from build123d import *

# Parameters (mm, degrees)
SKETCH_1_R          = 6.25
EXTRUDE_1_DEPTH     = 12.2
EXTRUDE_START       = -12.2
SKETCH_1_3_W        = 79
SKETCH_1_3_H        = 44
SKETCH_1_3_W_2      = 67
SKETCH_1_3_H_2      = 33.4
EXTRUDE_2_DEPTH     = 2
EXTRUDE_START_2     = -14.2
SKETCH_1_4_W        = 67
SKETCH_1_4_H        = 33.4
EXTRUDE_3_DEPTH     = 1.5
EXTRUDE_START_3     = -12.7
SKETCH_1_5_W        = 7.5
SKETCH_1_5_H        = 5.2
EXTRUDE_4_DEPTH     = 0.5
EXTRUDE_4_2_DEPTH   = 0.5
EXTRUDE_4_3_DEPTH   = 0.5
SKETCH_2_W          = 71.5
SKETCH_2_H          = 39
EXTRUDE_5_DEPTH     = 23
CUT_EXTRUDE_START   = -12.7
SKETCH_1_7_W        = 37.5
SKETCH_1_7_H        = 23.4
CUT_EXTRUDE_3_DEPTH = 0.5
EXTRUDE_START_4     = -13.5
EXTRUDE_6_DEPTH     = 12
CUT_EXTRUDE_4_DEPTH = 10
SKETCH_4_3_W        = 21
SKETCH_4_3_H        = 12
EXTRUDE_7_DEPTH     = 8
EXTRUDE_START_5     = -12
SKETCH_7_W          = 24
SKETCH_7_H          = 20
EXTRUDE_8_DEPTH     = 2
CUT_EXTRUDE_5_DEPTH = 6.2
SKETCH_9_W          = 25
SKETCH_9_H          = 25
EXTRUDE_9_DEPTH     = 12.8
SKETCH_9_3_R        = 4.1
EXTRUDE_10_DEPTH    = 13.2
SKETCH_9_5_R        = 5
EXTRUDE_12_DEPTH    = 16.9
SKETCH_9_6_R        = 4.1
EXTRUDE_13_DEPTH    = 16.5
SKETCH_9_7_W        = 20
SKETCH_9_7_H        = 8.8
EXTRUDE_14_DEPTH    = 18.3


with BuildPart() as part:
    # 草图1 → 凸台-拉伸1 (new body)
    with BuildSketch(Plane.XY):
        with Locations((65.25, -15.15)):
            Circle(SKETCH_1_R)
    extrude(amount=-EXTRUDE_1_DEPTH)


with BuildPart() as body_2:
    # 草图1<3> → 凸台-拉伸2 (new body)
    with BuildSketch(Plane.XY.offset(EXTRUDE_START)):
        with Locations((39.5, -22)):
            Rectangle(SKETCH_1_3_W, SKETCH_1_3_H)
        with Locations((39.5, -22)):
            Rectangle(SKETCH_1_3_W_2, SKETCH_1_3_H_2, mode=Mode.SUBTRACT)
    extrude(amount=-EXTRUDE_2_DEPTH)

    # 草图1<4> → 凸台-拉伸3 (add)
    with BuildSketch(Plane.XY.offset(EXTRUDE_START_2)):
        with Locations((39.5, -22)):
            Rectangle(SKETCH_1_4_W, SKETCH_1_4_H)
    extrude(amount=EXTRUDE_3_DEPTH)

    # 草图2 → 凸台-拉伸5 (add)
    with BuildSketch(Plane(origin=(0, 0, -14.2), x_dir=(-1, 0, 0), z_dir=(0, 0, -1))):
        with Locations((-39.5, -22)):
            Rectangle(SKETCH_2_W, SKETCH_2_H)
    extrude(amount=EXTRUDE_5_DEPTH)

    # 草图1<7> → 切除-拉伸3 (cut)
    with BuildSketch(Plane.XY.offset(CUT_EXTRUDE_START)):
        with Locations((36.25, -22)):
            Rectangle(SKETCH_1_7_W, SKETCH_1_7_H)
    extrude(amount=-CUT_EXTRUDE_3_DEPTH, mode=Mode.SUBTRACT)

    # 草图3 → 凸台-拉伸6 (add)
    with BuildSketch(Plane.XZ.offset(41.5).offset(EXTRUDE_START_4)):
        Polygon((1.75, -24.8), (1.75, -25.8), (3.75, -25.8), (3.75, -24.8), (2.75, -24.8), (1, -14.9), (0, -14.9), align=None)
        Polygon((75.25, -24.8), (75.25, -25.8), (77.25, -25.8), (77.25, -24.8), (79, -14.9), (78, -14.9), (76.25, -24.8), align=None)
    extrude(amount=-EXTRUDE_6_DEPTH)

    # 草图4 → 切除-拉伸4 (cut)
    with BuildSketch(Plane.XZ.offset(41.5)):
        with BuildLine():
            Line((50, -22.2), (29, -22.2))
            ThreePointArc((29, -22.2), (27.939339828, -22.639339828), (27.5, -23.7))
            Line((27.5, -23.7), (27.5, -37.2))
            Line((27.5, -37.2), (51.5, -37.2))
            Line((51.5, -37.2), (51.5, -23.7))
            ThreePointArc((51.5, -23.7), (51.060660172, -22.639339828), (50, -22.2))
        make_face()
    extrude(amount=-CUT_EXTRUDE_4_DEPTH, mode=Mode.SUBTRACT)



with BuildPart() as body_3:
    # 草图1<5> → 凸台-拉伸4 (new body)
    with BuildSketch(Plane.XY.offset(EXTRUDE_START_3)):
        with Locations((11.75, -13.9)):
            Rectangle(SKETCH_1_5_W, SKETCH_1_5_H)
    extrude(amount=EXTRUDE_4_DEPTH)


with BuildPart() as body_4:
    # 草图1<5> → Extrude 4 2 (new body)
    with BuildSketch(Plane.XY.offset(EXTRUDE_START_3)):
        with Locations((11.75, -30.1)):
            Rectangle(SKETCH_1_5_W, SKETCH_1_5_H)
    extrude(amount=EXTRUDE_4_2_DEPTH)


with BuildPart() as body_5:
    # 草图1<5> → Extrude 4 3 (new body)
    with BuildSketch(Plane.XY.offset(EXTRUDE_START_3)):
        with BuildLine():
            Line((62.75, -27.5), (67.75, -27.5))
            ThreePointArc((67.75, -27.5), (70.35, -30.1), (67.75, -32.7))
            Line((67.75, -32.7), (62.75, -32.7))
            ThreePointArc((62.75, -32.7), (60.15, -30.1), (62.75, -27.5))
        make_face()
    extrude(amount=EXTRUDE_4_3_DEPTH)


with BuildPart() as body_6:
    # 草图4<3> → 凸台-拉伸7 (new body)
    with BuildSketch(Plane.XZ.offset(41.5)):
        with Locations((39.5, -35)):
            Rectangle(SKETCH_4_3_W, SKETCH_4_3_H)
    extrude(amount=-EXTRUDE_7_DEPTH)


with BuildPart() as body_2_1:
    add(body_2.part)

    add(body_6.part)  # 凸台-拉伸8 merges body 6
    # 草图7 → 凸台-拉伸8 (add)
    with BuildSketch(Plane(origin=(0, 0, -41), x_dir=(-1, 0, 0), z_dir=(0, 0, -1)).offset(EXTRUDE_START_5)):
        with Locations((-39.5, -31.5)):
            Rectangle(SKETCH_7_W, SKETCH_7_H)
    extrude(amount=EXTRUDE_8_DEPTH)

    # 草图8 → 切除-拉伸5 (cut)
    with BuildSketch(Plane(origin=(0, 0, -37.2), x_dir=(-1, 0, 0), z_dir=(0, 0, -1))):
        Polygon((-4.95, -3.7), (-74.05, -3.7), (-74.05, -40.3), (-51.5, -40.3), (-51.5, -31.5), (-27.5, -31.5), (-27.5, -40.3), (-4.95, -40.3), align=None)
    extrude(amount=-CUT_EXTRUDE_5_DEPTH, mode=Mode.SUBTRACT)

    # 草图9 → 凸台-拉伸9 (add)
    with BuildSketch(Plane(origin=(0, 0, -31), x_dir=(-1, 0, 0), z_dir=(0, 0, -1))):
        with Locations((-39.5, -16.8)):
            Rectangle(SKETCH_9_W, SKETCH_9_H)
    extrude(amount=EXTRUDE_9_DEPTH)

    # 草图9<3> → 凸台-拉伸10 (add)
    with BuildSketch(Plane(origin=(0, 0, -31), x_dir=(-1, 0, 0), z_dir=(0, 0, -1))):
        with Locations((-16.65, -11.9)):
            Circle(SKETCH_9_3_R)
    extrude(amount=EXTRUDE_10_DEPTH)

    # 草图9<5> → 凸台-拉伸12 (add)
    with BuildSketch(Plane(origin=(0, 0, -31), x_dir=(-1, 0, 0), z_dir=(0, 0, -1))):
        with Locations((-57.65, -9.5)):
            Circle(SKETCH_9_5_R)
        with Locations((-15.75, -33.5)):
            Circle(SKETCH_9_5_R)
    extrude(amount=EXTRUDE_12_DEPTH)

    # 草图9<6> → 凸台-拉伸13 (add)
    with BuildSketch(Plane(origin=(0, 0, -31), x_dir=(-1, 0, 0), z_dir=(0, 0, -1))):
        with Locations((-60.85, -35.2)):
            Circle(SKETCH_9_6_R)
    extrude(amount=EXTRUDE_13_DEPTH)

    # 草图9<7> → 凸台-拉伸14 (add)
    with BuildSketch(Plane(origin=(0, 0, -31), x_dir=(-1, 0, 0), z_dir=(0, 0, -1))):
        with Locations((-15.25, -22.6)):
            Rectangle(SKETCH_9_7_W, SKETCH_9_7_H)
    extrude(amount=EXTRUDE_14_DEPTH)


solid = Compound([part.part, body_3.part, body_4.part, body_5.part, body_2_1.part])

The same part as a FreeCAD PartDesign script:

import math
import FreeCAD as App
import Part
import Sketcher
from FreeCAD import Vector
Q = App.Units.Quantity

doc = App.newDocument("Part")
body = doc.addObject("PartDesign::Body", "Body")

# Sketch on XY plane
sketch1 = body.newObject("Sketcher::SketchObject", "Sketch")
sketch1.AttachmentSupport = (doc.getObject("XY_Plane"), [""])
sketch1.MapMode = "FlatFace"
sketch1.addGeometry(Part.Circle(Vector(65, -15, 0), Vector(0, 0, 1), 6), False)
sketch1.addConstraint([
    Sketcher.Constraint("Diameter", 0, Q("12.5 mm")),
    Sketcher.Constraint("DistanceX", -1, 1, 0, 3, Q("65.25 mm")),
    Sketcher.Constraint("DistanceY", 0, 3, -1, 1, Q("15.15 mm")),
])
pad1 = body.newObject("PartDesign::Pad", "Pad")
pad1.Profile = sketch1
pad1.Length = 12.2
pad1.Reversed = True
body2 = doc.addObject("PartDesign::Body", "Body001")

# Sketch on XY plane
sketch2 = body2.newObject("Sketcher::SketchObject", "Sketch001")
sketch2.AttachmentSupport = (doc.getObject("XY_Plane001"), [""])
sketch2.MapMode = "FlatFace"
sketch2.AttachmentOffset = App.Placement(Vector(0, 0, -12.2), App.Rotation())
sketch2.addGeometry([
    Part.LineSegment(Vector(0, 0, 0), Vector(0, -44, 0)),  # 0
    Part.LineSegment(Vector(0, -44, 0), Vector(79, -44, 0)),  # 1
    Part.LineSegment(Vector(79, -44, 0), Vector(79, 0, 0)),  # 2
    Part.LineSegment(Vector(79, 0, 0), Vector(0, 0, 0)),  # 3
    Part.LineSegment(Vector(73, -39, 0), Vector(6, -39, 0)),  # 4
    Part.LineSegment(Vector(6, -39, 0), Vector(6, -5, 0)),  # 5
    Part.LineSegment(Vector(6, -5, 0), Vector(73, -5, 0)),  # 6
    Part.LineSegment(Vector(73, -5, 0), Vector(73, -39, 0)),  # 7
], False)
sketch2.addConstraint([
    Sketcher.Constraint("Coincident", 0, 2, 1, 1),
    Sketcher.Constraint("Coincident", 1, 2, 2, 1),
    Sketcher.Constraint("Coincident", 2, 2, 3, 1),
    Sketcher.Constraint("Coincident", 3, 2, 0, 1),
    Sketcher.Constraint("Coincident", 4, 2, 5, 1),
    Sketcher.Constraint("Coincident", 5, 2, 6, 1),
    Sketcher.Constraint("Coincident", 6, 2, 7, 1),
    Sketcher.Constraint("Coincident", 7, 2, 4, 1),
    Sketcher.Constraint("Vertical", 0),
    Sketcher.Constraint("Horizontal", 1),
    Sketcher.Constraint("Vertical", 2),
    Sketcher.Constraint("Horizontal", 3),
    Sketcher.Constraint("Horizontal", 4),
    Sketcher.Constraint("Vertical", 5),
    Sketcher.Constraint("Horizontal", 6),
    Sketcher.Constraint("Vertical", 7),
    Sketcher.Constraint("Coincident", 3, 2, -1, 1),
    Sketcher.Constraint("DistanceX", 1, 1, 1, 2, Q("79 mm")),
    Sketcher.Constraint("DistanceX", 4, 2, 4, 1, Q("67 mm")),
    Sketcher.Constraint("DistanceY", 0, 2, 0, 1, Q("44 mm")),
    Sketcher.Constraint("DistanceY", 5, 1, 5, 2, Q("33.4 mm")),
    Sketcher.Constraint("DistanceX", -1, 1, 4, 2, Q("6 mm")),
    Sketcher.Constraint("DistanceY", 4, 2, -1, 1, Q("38.7 mm")),
])
pad2 = body2.newObject("PartDesign::Pad", "Pad001")
pad2.Profile = sketch2
pad2.Length = 2
pad2.Reversed = True

# Sketch on XY plane
sketch3 = body2.newObject("Sketcher::SketchObject", "Sketch002")
sketch3.AttachmentSupport = (doc.getObject("XY_Plane001"), [""])
sketch3.MapMode = "FlatFace"
sketch3.AttachmentOffset = App.Placement(Vector(0, 0, -14.2), App.Rotation())
sketch3.addGeometry([
    Part.LineSegment(Vector(6, -5, 0), Vector(6, -39, 0)),
    Part.LineSegment(Vector(6, -39, 0), Vector(73, -39, 0)),
    Part.LineSegment(Vector(73, -39, 0), Vector(73, -5, 0)),
    Part.LineSegment(Vector(73, -5, 0), Vector(6, -5, 0)),
], False)
sketch3.addConstraint([
    Sketcher.Constraint("Coincident", 0, 2, 1, 1),
    Sketcher.Constraint("Coincident", 1, 2, 2, 1),
    Sketcher.Constraint("Coincident", 2, 2, 3, 1),
    Sketcher.Constraint("Coincident", 3, 2, 0, 1),
    Sketcher.Constraint("Vertical", 0),
    Sketcher.Constraint("Horizontal", 1),
    Sketcher.Constraint("Vertical", 2),
    Sketcher.Constraint("Horizontal", 3),
    Sketcher.Constraint("DistanceX", 1, 1, 1, 2, Q("67 mm")),
    Sketcher.Constraint("DistanceY", 0, 2, 0, 1, Q("33.4 mm")),
    Sketcher.Constraint("DistanceX", -1, 1, 0, 2, Q("6 mm")),
    Sketcher.Constraint("DistanceY", 0, 2, -1, 1, Q("38.7 mm")),
])
pad3 = body2.newObject("PartDesign::Pad", "Pad002")
pad3.Profile = sketch3
pad3.Length = 1.5

# Sketch on XY plane
sketch4 = body2.newObject("Sketcher::SketchObject", "Sketch003")
sketch4.AttachmentSupport = (doc.getObject("XY_Plane001"), [""])
sketch4.MapMode = "FlatFace"
sketch4.AttachmentOffset = App.Placement(Vector(0, 0, -14.2), App.Rotation())
sketch4.addGeometry([
    Part.LineSegment(Vector(75, -2, 0), Vector(75, -42, 0)),
    Part.LineSegment(Vector(75, -42, 0), Vector(4, -42, 0)),
    Part.LineSegment(Vector(4, -42, 0), Vector(4, -2, 0)),
    Part.LineSegment(Vector(4, -2, 0), Vector(75, -2, 0)),
], False)
sketch4.addConstraint([
    Sketcher.Constraint("Coincident", 0, 2, 1, 1),
    Sketcher.Constraint("Coincident", 1, 2, 2, 1),
    Sketcher.Constraint("Coincident", 2, 2, 3, 1),
    Sketcher.Constraint("Coincident", 3, 2, 0, 1),
    Sketcher.Constraint("Vertical", 0),
    Sketcher.Constraint("Horizontal", 1),
    Sketcher.Constraint("Vertical", 2),
    Sketcher.Constraint("Horizontal", 3),
    Sketcher.Constraint("DistanceY", 0, 2, 0, 1, Q("39 mm")),
    Sketcher.Constraint("DistanceX", 1, 2, 1, 1, Q("71.5 mm")),
    Sketcher.Constraint("DistanceY", 0, 2, -1, 1, Q("41.5 mm")),
    Sketcher.Constraint("DistanceX", -1, 1, 0, 2, Q("75.25 mm")),
])
pad4 = body2.newObject("PartDesign::Pad", "Pad003")
pad4.Profile = sketch4
pad4.Length = 23
pad4.Reversed = True

# Sketch on XY plane
sketch5 = body2.newObject("Sketcher::SketchObject", "Sketch004")
sketch5.AttachmentSupport = (doc.getObject("XY_Plane001"), [""])
sketch5.MapMode = "FlatFace"
sketch5.AttachmentOffset = App.Placement(Vector(0, 0, -12.7), App.Rotation())
sketch5.addGeometry([
    Part.LineSegment(Vector(18, -10, 0), Vector(18, -34, 0)),
    Part.LineSegment(Vector(18, -34, 0), Vector(55, -34, 0)),
    Part.LineSegment(Vector(55, -34, 0), Vector(55, -10, 0)),
    Part.LineSegment(Vector(55, -10, 0), Vector(18, -10, 0)),
], False)
sketch5.addConstraint([
    Sketcher.Constraint("Coincident", 0, 2, 1, 1),
    Sketcher.Constraint("Coincident", 1, 2, 2, 1),
    Sketcher.Constraint("Coincident", 2, 2, 3, 1),
    Sketcher.Constraint("Coincident", 3, 2, 0, 1),
    Sketcher.Constraint("Vertical", 0),
    Sketcher.Constraint("Horizontal", 1),
    Sketcher.Constraint("Vertical", 2),
    Sketcher.Constraint("Horizontal", 3),
    Sketcher.Constraint("DistanceX", 1, 1, 1, 2, Q("37.5 mm")),
    Sketcher.Constraint("DistanceY", 0, 2, 0, 1, Q("23.4 mm")),
    Sketcher.Constraint("DistanceX", -1, 1, 1, 2, Q("55 mm")),
    Sketcher.Constraint("DistanceY", 0, 2, -1, 1, Q("33.7 mm")),
])
pocket1 = body2.newObject("PartDesign::Pocket", "Pocket")
pocket1.Profile = sketch5
pocket1.Length = 0.5

# Sketch on XZ plane
sketch6 = body2.newObject("Sketcher::SketchObject", "Sketch005")
sketch6.AttachmentSupport = (doc.getObject("XZ_Plane001"), [""])
sketch6.MapMode = "FlatFace"
sketch6.AttachmentOffset = App.Placement(Vector(0, 0, 28), App.Rotation())
sketch6.addGeometry([
    Part.LineSegment(Vector(1.8, -24.8, 0), Vector(1.8, -25.8, 0)),  # 0
    Part.LineSegment(Vector(1.8, -25.8, 0), Vector(3.8, -25.8, 0)),  # 1
    Part.LineSegment(Vector(3.8, -25.8, 0), Vector(3.8, -24.8, 0)),  # 2
    Part.LineSegment(Vector(3.8, -24.8, 0), Vector(2.8, -24.8, 0)),  # 3
    Part.LineSegment(Vector(2.8, -24.8, 0), Vector(1, -14.9, 0)),  # 4
    Part.LineSegment(Vector(1, -14.9, 0), Vector(0, -14.9, 0)),  # 5
    Part.LineSegment(Vector(0, -14.9, 0), Vector(1.8, -24.8, 0)),  # 6
    Part.LineSegment(Vector(75.2, -24.8, 0), Vector(75.2, -25.8, 0)),  # 7
    Part.LineSegment(Vector(75.2, -25.8, 0), Vector(77.2, -25.8, 0)),  # 8
    Part.LineSegment(Vector(77.2, -25.8, 0), Vector(77.2, -24.8, 0)),  # 9
    Part.LineSegment(Vector(77.2, -24.8, 0), Vector(79, -14.9, 0)),  # 10
    Part.LineSegment(Vector(79, -14.9, 0), Vector(78, -14.9, 0)),  # 11
    Part.LineSegment(Vector(78, -14.9, 0), Vector(76.2, -24.8, 0)),  # 12
    Part.LineSegment(Vector(76.2, -24.8, 0), Vector(75.2, -24.8, 0)),  # 13
], False)
sketch6.addConstraint([
    Sketcher.Constraint("Coincident", 0, 2, 1, 1),
    Sketcher.Constraint("Coincident", 1, 2, 2, 1),
    Sketcher.Constraint("Coincident", 2, 2, 3, 1),
    Sketcher.Constraint("Coincident", 3, 2, 4, 1),
    Sketcher.Constraint("Coincident", 4, 2, 5, 1),
    Sketcher.Constraint("Coincident", 5, 2, 6, 1),
    Sketcher.Constraint("Coincident", 6, 2, 0, 1),
    Sketcher.Constraint("Coincident", 7, 2, 8, 1),
    Sketcher.Constraint("Coincident", 8, 2, 9, 1),
    Sketcher.Constraint("Coincident", 9, 2, 10, 1),
    Sketcher.Constraint("Coincident", 10, 2, 11, 1),
    Sketcher.Constraint("Coincident", 11, 2, 12, 1),
    Sketcher.Constraint("Coincident", 12, 2, 13, 1),
    Sketcher.Constraint("Coincident", 13, 2, 7, 1),
    Sketcher.Constraint("Vertical", 0),
    Sketcher.Constraint("Horizontal", 1),
    Sketcher.Constraint("Vertical", 2),
    Sketcher.Constraint("Horizontal", 3),
    Sketcher.Constraint("Horizontal", 5),
    Sketcher.Constraint("Vertical", 7),
    Sketcher.Constraint("Horizontal", 8),
    Sketcher.Constraint("Vertical", 9),
    Sketcher.Constraint("Horizontal", 11),
    Sketcher.Constraint("Horizontal", 13),
    Sketcher.Constraint("PointOnObject", 5, 2, -2),
    Sketcher.Constraint("Parallel", 4, 6),
    Sketcher.Constraint("Parallel", 10, 12),
    Sketcher.Constraint("Horizontal", 3, 2, 6, 2),
    Sketcher.Constraint("Horizontal", 1, 2, 7, 2),
    Sketcher.Constraint("Horizontal", 6, 2, 9, 2),
    Sketcher.Constraint("Horizontal", 5, 2, 10, 2),
    Sketcher.Constraint("Horizontal", 9, 2, 12, 2),
    Sketcher.Constraint("Equal", 3, 5),
    Sketcher.Constraint("Equal", 1, 8),
    Sketcher.Constraint("Equal", 5, 11),
    Sketcher.Constraint("Equal", 13, 0),
    Sketcher.Constraint("Equal", 6, 10),
    Sketcher.Constraint("DistanceX", 1, 1, 1, 2, Q("2 mm")),
    Sketcher.Constraint("DistanceX", -1, 1, 10, 2, Q("79 mm")),
    Sketcher.Constraint("DistanceY", 0, 2, -1, 1, Q("25.8 mm")),
    Sketcher.Constraint("DistanceY", 4, 2, -1, 1, Q("14.9 mm")),
    Sketcher.Constraint("DistanceX", 1, 2, 7, 2, Q("71.5 mm")),
])
pad5 = body2.newObject("PartDesign::Pad", "Pad004")
pad5.Profile = sketch6
pad5.Length = 12
pad5.Reversed = True

# Sketch on XZ plane
sketch7 = body2.newObject("Sketcher::SketchObject", "Sketch006")
sketch7.AttachmentSupport = (doc.getObject("XZ_Plane001"), [""])
sketch7.MapMode = "FlatFace"
sketch7.AttachmentOffset = App.Placement(Vector(0, 0, 41.5), App.Rotation())
sketch7.addGeometry([
    Part.LineSegment(Vector(50, -22.2, 0), Vector(29, -22.2, 0)),  # 0
    Part.ArcOfCircle(Part.Circle(Vector(29, -23.7, 0), Vector(0, 0, 1), 1.5), math.radians(90), math.radians(180)),  # 1
    Part.LineSegment(Vector(27.5, -23.7, 0), Vector(27.5, -37.2, 0)),  # 2
    Part.LineSegment(Vector(27.5, -37.2, 0), Vector(51.5, -37.2, 0)),  # 3
    Part.LineSegment(Vector(51.5, -37.2, 0), Vector(51.5, -23.7, 0)),  # 4
    Part.ArcOfCircle(Part.Circle(Vector(50, -23.7, 0), Vector(0, 0, 1), 1.5), math.radians(0), math.radians(90)),  # 5
], False)
sketch7.addConstraint([
    Sketcher.Constraint("Tangent", 0, 2, 1, 1),
    Sketcher.Constraint("Tangent", 1, 2, 2, 1),
    Sketcher.Constraint("Coincident", 2, 2, 3, 1),
    Sketcher.Constraint("Coincident", 3, 2, 4, 1),
    Sketcher.Constraint("Tangent", 4, 2, 5, 1),
    Sketcher.Constraint("Tangent", 5, 2, 0, 1),
    Sketcher.Constraint("Horizontal", 0),
    Sketcher.Constraint("Vertical", 2),
    Sketcher.Constraint("Horizontal", 3),
    Sketcher.Constraint("Vertical", 4),
    Sketcher.Constraint("Equal", 1, 5),
    Sketcher.Constraint("Radius", 1, Q("1.5 mm")),
    Sketcher.Constraint("DistanceX", 0, 2, 0, 1, Q("21 mm")),
    Sketcher.Constraint("DistanceY", 2, 2, 2, 1, Q("13.5 mm")),
    Sketcher.Constraint("DistanceX", -1, 1, 1, 3, Q("29 mm")),
    Sketcher.Constraint("DistanceY", 1, 3, -1, 1, Q("23.7 mm")),
])
pocket2 = body2.newObject("PartDesign::Pocket", "Pocket001")
pocket2.Profile = sketch7
pocket2.Length = 10
body3 = doc.addObject("PartDesign::Body", "Body002")

# Sketch on XY plane
sketch8 = body3.newObject("Sketcher::SketchObject", "Sketch007")
sketch8.AttachmentSupport = (doc.getObject("XY_Plane002"), [""])
sketch8.MapMode = "FlatFace"
sketch8.AttachmentOffset = App.Placement(Vector(0, 0, -12.7), App.Rotation())
sketch8.addGeometry([
    Part.LineSegment(Vector(8, -11, 0), Vector(8, -16, 0)),
    Part.LineSegment(Vector(8, -16, 0), Vector(16, -16, 0)),
    Part.LineSegment(Vector(16, -16, 0), Vector(16, -11, 0)),
    Part.LineSegment(Vector(16, -11, 0), Vector(8, -11, 0)),
], False)
sketch8.addConstraint([
    Sketcher.Constraint("Coincident", 0, 2, 1, 1),
    Sketcher.Constraint("Coincident", 1, 2, 2, 1),
    Sketcher.Constraint("Coincident", 2, 2, 3, 1),
    Sketcher.Constraint("Coincident", 3, 2, 0, 1),
    Sketcher.Constraint("Vertical", 0),
    Sketcher.Constraint("Horizontal", 1),
    Sketcher.Constraint("Vertical", 2),
    Sketcher.Constraint("Horizontal", 3),
    Sketcher.Constraint("DistanceX", 1, 1, 1, 2, Q("7.5 mm")),
    Sketcher.Constraint("DistanceY", 0, 2, 0, 1, Q("5.2 mm")),
    Sketcher.Constraint("DistanceX", -1, 1, 0, 2, Q("8 mm")),
    Sketcher.Constraint("DistanceY", 0, 2, -1, 1, Q("16.5 mm")),
])
pad6 = body3.newObject("PartDesign::Pad", "Pad005")
pad6.Profile = sketch8
pad6.Length = 0.5
body4 = doc.addObject("PartDesign::Body", "Body003")

# Sketch on XY plane
sketch9 = body4.newObject("Sketcher::SketchObject", "Sketch008")
sketch9.AttachmentSupport = (doc.getObject("XY_Plane003"), [""])
sketch9.MapMode = "FlatFace"
sketch9.AttachmentOffset = App.Placement(Vector(0, 0, -12.7), App.Rotation())
sketch9.addGeometry([
    Part.LineSegment(Vector(8, -28, 0), Vector(8, -33, 0)),
    Part.LineSegment(Vector(8, -33, 0), Vector(16, -33, 0)),
    Part.LineSegment(Vector(16, -33, 0), Vector(16, -28, 0)),
    Part.LineSegment(Vector(16, -28, 0), Vector(8, -28, 0)),
], False)
sketch9.addConstraint([
    Sketcher.Constraint("Coincident", 0, 2, 1, 1),
    Sketcher.Constraint("Coincident", 1, 2, 2, 1),
    Sketcher.Constraint("Coincident", 2, 2, 3, 1),
    Sketcher.Constraint("Coincident", 3, 2, 0, 1),
    Sketcher.Constraint("Vertical", 0),
    Sketcher.Constraint("Horizontal", 1),
    Sketcher.Constraint("Vertical", 2),
    Sketcher.Constraint("Horizontal", 3),
    Sketcher.Constraint("DistanceX", 1, 1, 1, 2, Q("7.5 mm")),
    Sketcher.Constraint("DistanceY", 0, 2, 0, 1, Q("5.2 mm")),
    Sketcher.Constraint("DistanceX", -1, 1, 0, 2, Q("8 mm")),
    Sketcher.Constraint("DistanceY", 0, 2, -1, 1, Q("32.7 mm")),
])
pad7 = body4.newObject("PartDesign::Pad", "Pad006")
pad7.Profile = sketch9
pad7.Length = 0.5
body5 = doc.addObject("PartDesign::Body", "Body004")

# Sketch on XY plane
sketch10 = body5.newObject("Sketcher::SketchObject", "Sketch009")
sketch10.AttachmentSupport = (doc.getObject("XY_Plane004"), [""])
sketch10.MapMode = "FlatFace"
sketch10.AttachmentOffset = App.Placement(Vector(0, 0, -12.7), App.Rotation())
sketch10.addGeometry([
    Part.LineSegment(Vector(67.8, -27.5, 0), Vector(62.8, -27.5, 0)),
    Part.ArcOfCircle(Part.Circle(Vector(62.8, -30.1, 0), Vector(0, 0, 1), 2.6), math.radians(90), math.radians(270)),
    Part.LineSegment(Vector(62.8, -32.7, 0), Vector(67.8, -32.7, 0)),
    Part.ArcOfCircle(Part.Circle(Vector(67.8, -30.1, 0), Vector(0, 0, 1), 2.6), math.radians(-90), math.radians(90)),
], False)
sketch10.addConstraint([
    Sketcher.Constraint("Tangent", 0, 2, 1, 1),
    Sketcher.Constraint("Tangent", 1, 2, 2, 1),
    Sketcher.Constraint("Tangent", 2, 2, 3, 1),
    Sketcher.Constraint("Tangent", 3, 2, 0, 1),
    Sketcher.Constraint("Horizontal", 0),
    Sketcher.Constraint("Horizontal", 2),
    Sketcher.Constraint("Radius", 1, Q("2.6 mm")),
    Sketcher.Constraint("DistanceX", 0, 2, 0, 1, Q("5 mm")),
    Sketcher.Constraint("DistanceY", 1, 3, -1, 1, Q("30.1 mm")),
    Sketcher.Constraint("DistanceX", -1, 1, 1, 3, Q("62.75 mm")),
])
pad8 = body5.newObject("PartDesign::Pad", "Pad007")
pad8.Profile = sketch10
pad8.Length = 0.5
body6 = doc.addObject("PartDesign::Body", "Body005")

# Sketch on XZ plane
sketch11 = body6.newObject("Sketcher::SketchObject", "Sketch010")
sketch11.AttachmentSupport = (doc.getObject("XZ_Plane005"), [""])
sketch11.MapMode = "FlatFace"
sketch11.AttachmentOffset = App.Placement(Vector(0, 0, 41.5), App.Rotation())
sketch11.addGeometry([
    Part.LineSegment(Vector(29, -29, 0), Vector(29, -41, 0)),
    Part.LineSegment(Vector(29, -41, 0), Vector(50, -41, 0)),
    Part.LineSegment(Vector(50, -41, 0), Vector(50, -29, 0)),
    Part.LineSegment(Vector(50, -29, 0), Vector(29, -29, 0)),
], False)
sketch11.addConstraint([
    Sketcher.Constraint("Coincident", 0, 2, 1, 1),
    Sketcher.Constraint("Coincident", 1, 2, 2, 1),
    Sketcher.Constraint("Coincident", 2, 2, 3, 1),
    Sketcher.Constraint("Coincident", 3, 2, 0, 1),
    Sketcher.Constraint("Vertical", 0),
    Sketcher.Constraint("Horizontal", 1),
    Sketcher.Constraint("Vertical", 2),
    Sketcher.Constraint("Horizontal", 3),
    Sketcher.Constraint("DistanceX", 1, 1, 1, 2, Q("21 mm")),
    Sketcher.Constraint("DistanceY", 0, 2, 0, 1, Q("12 mm")),
    Sketcher.Constraint("DistanceX", -1, 1, 0, 2, Q("29 mm")),
    Sketcher.Constraint("DistanceY", 0, 2, -1, 1, Q("41 mm")),
])
pad9 = body6.newObject("PartDesign::Pad", "Pad008")
pad9.Profile = sketch11
pad9.Length = 8
pad9.Reversed = True
body2.AllowCompound = True
doc.recompute()

boolean = body2.newObject("PartDesign::Boolean", "Boolean")
boolean.Type = "Fuse"
boolean.addObjects([body6])

# Sketch on XY plane
sketch12 = body2.newObject("Sketcher::SketchObject", "Sketch011")
sketch12.AttachmentSupport = (doc.getObject("XY_Plane001"), [""])
sketch12.MapMode = "FlatFace"
sketch12.AttachmentOffset = App.Placement(Vector(0, 0, -29), App.Rotation())
sketch12.addGeometry([
    Part.LineSegment(Vector(52, -22, 0), Vector(52, -42, 0)),
    Part.LineSegment(Vector(52, -42, 0), Vector(28, -42, 0)),
    Part.LineSegment(Vector(28, -42, 0), Vector(28, -22, 0)),
    Part.LineSegment(Vector(28, -22, 0), Vector(52, -22, 0)),
], False)
sketch12.addConstraint([
    Sketcher.Constraint("Coincident", 0, 2, 1, 1),
    Sketcher.Constraint("Coincident", 1, 2, 2, 1),
    Sketcher.Constraint("Coincident", 2, 2, 3, 1),
    Sketcher.Constraint("Coincident", 3, 2, 0, 1),
    Sketcher.Constraint("Vertical", 0),
    Sketcher.Constraint("Horizontal", 1),
    Sketcher.Constraint("Vertical", 2),
    Sketcher.Constraint("Horizontal", 3),
    Sketcher.Constraint("DistanceX", 1, 2, 1, 1, Q("24 mm")),
    Sketcher.Constraint("DistanceY", 0, 2, 0, 1, Q("20 mm")),
    Sketcher.Constraint("DistanceX", -1, 1, 0, 2, Q("51.5 mm")),
    Sketcher.Constraint("DistanceY", 0, 2, -1, 1, Q("41.5 mm")),
])
pad10 = body2.newObject("PartDesign::Pad", "Pad009")
pad10.Profile = sketch12
pad10.Length = 2
pad10.Reversed = True

# Sketch on XY plane
sketch13 = body2.newObject("Sketcher::SketchObject", "Sketch012")
sketch13.AttachmentSupport = (doc.getObject("XY_Plane001"), [""])
sketch13.MapMode = "FlatFace"
sketch13.AttachmentOffset = App.Placement(Vector(0, 0, -37.2), App.Rotation())
sketch13.addGeometry([
    Part.LineSegment(Vector(5, -4, 0), Vector(74, -4, 0)),  # 0
    Part.LineSegment(Vector(74, -4, 0), Vector(74, -40, 0)),  # 1
    Part.LineSegment(Vector(74, -40, 0), Vector(52, -40, 0)),  # 2
    Part.LineSegment(Vector(52, -40, 0), Vector(52, -32, 0)),  # 3
    Part.LineSegment(Vector(52, -32, 0), Vector(28, -32, 0)),  # 4
    Part.LineSegment(Vector(28, -32, 0), Vector(28, -40, 0)),  # 5
    Part.LineSegment(Vector(28, -40, 0), Vector(5, -40, 0)),  # 6
    Part.LineSegment(Vector(5, -40, 0), Vector(5, -4, 0)),  # 7
], False)
sketch13.addConstraint([
    Sketcher.Constraint("Coincident", 0, 2, 1, 1),
    Sketcher.Constraint("Coincident", 1, 2, 2, 1),
    Sketcher.Constraint("Coincident", 2, 2, 3, 1),
    Sketcher.Constraint("Coincident", 3, 2, 4, 1),
    Sketcher.Constraint("Coincident", 4, 2, 5, 1),
    Sketcher.Constraint("Coincident", 5, 2, 6, 1),
    Sketcher.Constraint("Coincident", 6, 2, 7, 1),
    Sketcher.Constraint("Coincident", 7, 2, 0, 1),
    Sketcher.Constraint("Horizontal", 0),
    Sketcher.Constraint("Vertical", 1),
    Sketcher.Constraint("Horizontal", 2),
    Sketcher.Constraint("Vertical", 3),
    Sketcher.Constraint("Horizontal", 4),
    Sketcher.Constraint("Vertical", 5),
    Sketcher.Constraint("Horizontal", 6),
    Sketcher.Constraint("Vertical", 7),
    Sketcher.Constraint("Horizontal", 2, 2, 5, 2),
    Sketcher.Constraint("Equal", 2, 6),
    Sketcher.Constraint("DistanceX", 4, 2, 4, 1, Q("24 mm")),
    Sketcher.Constraint("DistanceX", 0, 1, 0, 2, Q("69.1 mm")),
    Sketcher.Constraint("DistanceY", 1, 2, 1, 1, Q("36.6 mm")),
    Sketcher.Constraint("DistanceY", 3, 1, 3, 2, Q("8.8 mm")),
    Sketcher.Constraint("DistanceY", 0, 2, -1, 1, Q("3.7 mm")),
    Sketcher.Constraint("DistanceX", -1, 1, 2, 2, Q("51.5 mm")),
])
pocket3 = body2.newObject("PartDesign::Pocket", "Pocket002")
pocket3.Profile = sketch13
pocket3.Length = 6.2
pocket3.Reversed = True

# Sketch on XY plane
sketch14 = body2.newObject("Sketcher::SketchObject", "Sketch013")
sketch14.AttachmentSupport = (doc.getObject("XY_Plane001"), [""])
sketch14.MapMode = "FlatFace"
sketch14.AttachmentOffset = App.Placement(Vector(0, 0, -31), App.Rotation())
sketch14.addGeometry([
    Part.LineSegment(Vector(52, -4, 0), Vector(52, -29, 0)),
    Part.LineSegment(Vector(52, -29, 0), Vector(27, -29, 0)),
    Part.LineSegment(Vector(27, -29, 0), Vector(27, -4, 0)),
    Part.LineSegment(Vector(27, -4, 0), Vector(52, -4, 0)),
], False)
sketch14.addConstraint([
    Sketcher.Constraint("Coincident", 0, 2, 1, 1),
    Sketcher.Constraint("Coincident", 1, 2, 2, 1),
    Sketcher.Constraint("Coincident", 2, 2, 3, 1),
    Sketcher.Constraint("Coincident", 3, 2, 0, 1),
    Sketcher.Constraint("Vertical", 0),
    Sketcher.Constraint("Horizontal", 1),
    Sketcher.Constraint("Vertical", 2),
    Sketcher.Constraint("Horizontal", 3),
    Sketcher.Constraint("Equal", 3, 0),
    Sketcher.Constraint("DistanceX", 1, 2, 1, 1, Q("25 mm")),
    Sketcher.Constraint("DistanceX", -1, 1, 0, 2, Q("52 mm")),
    Sketcher.Constraint("DistanceY", 0, 2, -1, 1, Q("29.3 mm")),
])
pad11 = body2.newObject("PartDesign::Pad", "Pad010")
pad11.Profile = sketch14
pad11.Length = 12.8
pad11.Reversed = True

# Sketch on XY plane
sketch15 = body2.newObject("Sketcher::SketchObject", "Sketch014")
sketch15.AttachmentSupport = (doc.getObject("XY_Plane001"), [""])
sketch15.MapMode = "FlatFace"
sketch15.AttachmentOffset = App.Placement(Vector(0, 0, -31), App.Rotation())
sketch15.addGeometry(Part.Circle(Vector(16.6, -11.9, 0), Vector(0, 0, 1), 4.1), False)
sketch15.addConstraint([
    Sketcher.Constraint("Diameter", 0, Q("8.2 mm")),
    Sketcher.Constraint("DistanceY", 0, 3, -1, 1, Q("11.9 mm")),
    Sketcher.Constraint("DistanceX", -1, 1, 0, 3, Q("16.65 mm")),
])
pad12 = body2.newObject("PartDesign::Pad", "Pad011")
pad12.Profile = sketch15
pad12.Length = 13.2
pad12.Reversed = True

# Sketch on XY plane
sketch16 = body2.newObject("Sketcher::SketchObject", "Sketch015")
sketch16.AttachmentSupport = (doc.getObject("XY_Plane001"), [""])
sketch16.MapMode = "FlatFace"
sketch16.AttachmentOffset = App.Placement(Vector(0, 0, -31), App.Rotation())
sketch16.addGeometry([
    Part.Circle(Vector(58, -10, 0), Vector(0, 0, 1), 5),
    Part.Circle(Vector(16, -34, 0), Vector(0, 0, 1), 5),
], False)
sketch16.addConstraint([
    Sketcher.Constraint("Equal", 0, 1),
    Sketcher.Constraint("Diameter", 0, Q("10 mm")),
    Sketcher.Constraint("DistanceY", 1, 3, 0, 3, Q("24 mm")),
    Sketcher.Constraint("DistanceY", 0, 3, -1, 1, Q("9.5 mm")),
    Sketcher.Constraint("DistanceX", 1, 3, 0, 3, Q("41.9 mm")),
    Sketcher.Constraint("DistanceX", -1, 1, 0, 3, Q("57.65 mm")),
])
pad13 = body2.newObject("PartDesign::Pad", "Pad012")
pad13.Profile = sketch16
pad13.Length = 16.9
pad13.Reversed = True

# Sketch on XY plane
sketch17 = body2.newObject("Sketcher::SketchObject", "Sketch016")
sketch17.AttachmentSupport = (doc.getObject("XY_Plane001"), [""])
sketch17.MapMode = "FlatFace"
sketch17.AttachmentOffset = App.Placement(Vector(0, 0, -31), App.Rotation())
sketch17.addGeometry(Part.Circle(Vector(60.9, -35.2, 0), Vector(0, 0, 1), 4.1), False)
sketch17.addConstraint([
    Sketcher.Constraint("Diameter", 0, Q("8.2 mm")),
    Sketcher.Constraint("DistanceY", 0, 3, -1, 1, Q("35.2 mm")),
    Sketcher.Constraint("DistanceX", -1, 1, 0, 3, Q("60.85 mm")),
])
pad14 = body2.newObject("PartDesign::Pad", "Pad013")
pad14.Profile = sketch17
pad14.Length = 16.5
pad14.Reversed = True

# Sketch on XY plane
sketch18 = body2.newObject("Sketcher::SketchObject", "Sketch017")
sketch18.AttachmentSupport = (doc.getObject("XY_Plane001"), [""])
sketch18.MapMode = "FlatFace"
sketch18.AttachmentOffset = App.Placement(Vector(0, 0, -31), App.Rotation())
sketch18.addGeometry([
    Part.LineSegment(Vector(25, -18, 0), Vector(25, -27, 0)),
    Part.LineSegment(Vector(25, -27, 0), Vector(5, -27, 0)),
    Part.LineSegment(Vector(5, -27, 0), Vector(5, -18, 0)),
    Part.LineSegment(Vector(5, -18, 0), Vector(25, -18, 0)),
], False)
sketch18.addConstraint([
    Sketcher.Constraint("Coincident", 0, 2, 1, 1),
    Sketcher.Constraint("Coincident", 1, 2, 2, 1),
    Sketcher.Constraint("Coincident", 2, 2, 3, 1),
    Sketcher.Constraint("Coincident", 3, 2, 0, 1),
    Sketcher.Constraint("Vertical", 0),
    Sketcher.Constraint("Horizontal", 1),
    Sketcher.Constraint("Vertical", 2),
    Sketcher.Constraint("Horizontal", 3),
    Sketcher.Constraint("DistanceX", 1, 2, 1, 1, Q("20 mm")),
    Sketcher.Constraint("DistanceY", 0, 2, 0, 1, Q("8.8 mm")),
    Sketcher.Constraint("DistanceY", 0, 2, -1, 1, Q("27 mm")),
    Sketcher.Constraint("DistanceX", -1, 1, 0, 2, Q("25.25 mm")),
])
pad15 = body2.newObject("PartDesign::Pad", "Pad014")
pad15.Profile = sketch18
pad15.Length = 18.3
pad15.Reversed = True

doc.recompute()
